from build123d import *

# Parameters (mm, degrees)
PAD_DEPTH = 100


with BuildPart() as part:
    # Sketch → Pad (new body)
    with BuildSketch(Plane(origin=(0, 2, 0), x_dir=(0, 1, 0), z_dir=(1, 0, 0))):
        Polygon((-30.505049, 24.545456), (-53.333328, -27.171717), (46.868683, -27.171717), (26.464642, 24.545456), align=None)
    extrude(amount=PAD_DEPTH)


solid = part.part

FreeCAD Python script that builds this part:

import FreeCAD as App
import Part
import Sketcher

V = App.Vector

doc = App.newDocument("Part")
body = doc.addObject("PartDesign::Body", "Body")

sketch1 = body.newObject("Sketcher::SketchObject", "Sketch")
sketch1.AttachmentSupport = (doc.getObject("YZ_Plane"), [""])
sketch1.MapMode = "FlatFace"
sketch1.addGeometry([
    Part.LineSegment(V(-29, 25, 0), V(-51, -27, 0)),
    Part.LineSegment(V(-51, -27, 0), V(49, -27, 0)),
    Part.LineSegment(V(49, -27, 0), V(28, 25, 0)),
    Part.LineSegment(V(28, 25, 0), V(-29, 25, 0)),
], False)
sketch1.addConstraint([
    Sketcher.Constraint("Coincident", 0, 2, 1, 1),
    Sketcher.Constraint("Coincident", 1, 2, 2, 1),
    Sketcher.Constraint("Coincident", 2, 2, 3, 1),
    Sketcher.Constraint("Coincident", 3, 2, 0, 1),
    Sketcher.Constraint("Horizontal", 1),
    Sketcher.Constraint("Horizontal", 3),
    Sketcher.Constraint("DistanceX", 1, 1, 1, 2, 100.202011),
    Sketcher.Constraint("DistanceX", 3, 2, 3, 1, 56.969691),
    Sketcher.Constraint("Distance", 2, 55.59668),
    Sketcher.Constraint("DistanceX", 0, 2, -1, 1, 51.333328),
    Sketcher.Constraint("DistanceX", 3, 2, -1, 1, 28.505049),
    Sketcher.Constraint("DistanceY", 0, 2, -1, 1, 27.171717),
])
pad1 = body.newObject("PartDesign::Pad", "Pad")
pad1.Profile = sketch1
pad1.Length = 100

doc.recompute()
